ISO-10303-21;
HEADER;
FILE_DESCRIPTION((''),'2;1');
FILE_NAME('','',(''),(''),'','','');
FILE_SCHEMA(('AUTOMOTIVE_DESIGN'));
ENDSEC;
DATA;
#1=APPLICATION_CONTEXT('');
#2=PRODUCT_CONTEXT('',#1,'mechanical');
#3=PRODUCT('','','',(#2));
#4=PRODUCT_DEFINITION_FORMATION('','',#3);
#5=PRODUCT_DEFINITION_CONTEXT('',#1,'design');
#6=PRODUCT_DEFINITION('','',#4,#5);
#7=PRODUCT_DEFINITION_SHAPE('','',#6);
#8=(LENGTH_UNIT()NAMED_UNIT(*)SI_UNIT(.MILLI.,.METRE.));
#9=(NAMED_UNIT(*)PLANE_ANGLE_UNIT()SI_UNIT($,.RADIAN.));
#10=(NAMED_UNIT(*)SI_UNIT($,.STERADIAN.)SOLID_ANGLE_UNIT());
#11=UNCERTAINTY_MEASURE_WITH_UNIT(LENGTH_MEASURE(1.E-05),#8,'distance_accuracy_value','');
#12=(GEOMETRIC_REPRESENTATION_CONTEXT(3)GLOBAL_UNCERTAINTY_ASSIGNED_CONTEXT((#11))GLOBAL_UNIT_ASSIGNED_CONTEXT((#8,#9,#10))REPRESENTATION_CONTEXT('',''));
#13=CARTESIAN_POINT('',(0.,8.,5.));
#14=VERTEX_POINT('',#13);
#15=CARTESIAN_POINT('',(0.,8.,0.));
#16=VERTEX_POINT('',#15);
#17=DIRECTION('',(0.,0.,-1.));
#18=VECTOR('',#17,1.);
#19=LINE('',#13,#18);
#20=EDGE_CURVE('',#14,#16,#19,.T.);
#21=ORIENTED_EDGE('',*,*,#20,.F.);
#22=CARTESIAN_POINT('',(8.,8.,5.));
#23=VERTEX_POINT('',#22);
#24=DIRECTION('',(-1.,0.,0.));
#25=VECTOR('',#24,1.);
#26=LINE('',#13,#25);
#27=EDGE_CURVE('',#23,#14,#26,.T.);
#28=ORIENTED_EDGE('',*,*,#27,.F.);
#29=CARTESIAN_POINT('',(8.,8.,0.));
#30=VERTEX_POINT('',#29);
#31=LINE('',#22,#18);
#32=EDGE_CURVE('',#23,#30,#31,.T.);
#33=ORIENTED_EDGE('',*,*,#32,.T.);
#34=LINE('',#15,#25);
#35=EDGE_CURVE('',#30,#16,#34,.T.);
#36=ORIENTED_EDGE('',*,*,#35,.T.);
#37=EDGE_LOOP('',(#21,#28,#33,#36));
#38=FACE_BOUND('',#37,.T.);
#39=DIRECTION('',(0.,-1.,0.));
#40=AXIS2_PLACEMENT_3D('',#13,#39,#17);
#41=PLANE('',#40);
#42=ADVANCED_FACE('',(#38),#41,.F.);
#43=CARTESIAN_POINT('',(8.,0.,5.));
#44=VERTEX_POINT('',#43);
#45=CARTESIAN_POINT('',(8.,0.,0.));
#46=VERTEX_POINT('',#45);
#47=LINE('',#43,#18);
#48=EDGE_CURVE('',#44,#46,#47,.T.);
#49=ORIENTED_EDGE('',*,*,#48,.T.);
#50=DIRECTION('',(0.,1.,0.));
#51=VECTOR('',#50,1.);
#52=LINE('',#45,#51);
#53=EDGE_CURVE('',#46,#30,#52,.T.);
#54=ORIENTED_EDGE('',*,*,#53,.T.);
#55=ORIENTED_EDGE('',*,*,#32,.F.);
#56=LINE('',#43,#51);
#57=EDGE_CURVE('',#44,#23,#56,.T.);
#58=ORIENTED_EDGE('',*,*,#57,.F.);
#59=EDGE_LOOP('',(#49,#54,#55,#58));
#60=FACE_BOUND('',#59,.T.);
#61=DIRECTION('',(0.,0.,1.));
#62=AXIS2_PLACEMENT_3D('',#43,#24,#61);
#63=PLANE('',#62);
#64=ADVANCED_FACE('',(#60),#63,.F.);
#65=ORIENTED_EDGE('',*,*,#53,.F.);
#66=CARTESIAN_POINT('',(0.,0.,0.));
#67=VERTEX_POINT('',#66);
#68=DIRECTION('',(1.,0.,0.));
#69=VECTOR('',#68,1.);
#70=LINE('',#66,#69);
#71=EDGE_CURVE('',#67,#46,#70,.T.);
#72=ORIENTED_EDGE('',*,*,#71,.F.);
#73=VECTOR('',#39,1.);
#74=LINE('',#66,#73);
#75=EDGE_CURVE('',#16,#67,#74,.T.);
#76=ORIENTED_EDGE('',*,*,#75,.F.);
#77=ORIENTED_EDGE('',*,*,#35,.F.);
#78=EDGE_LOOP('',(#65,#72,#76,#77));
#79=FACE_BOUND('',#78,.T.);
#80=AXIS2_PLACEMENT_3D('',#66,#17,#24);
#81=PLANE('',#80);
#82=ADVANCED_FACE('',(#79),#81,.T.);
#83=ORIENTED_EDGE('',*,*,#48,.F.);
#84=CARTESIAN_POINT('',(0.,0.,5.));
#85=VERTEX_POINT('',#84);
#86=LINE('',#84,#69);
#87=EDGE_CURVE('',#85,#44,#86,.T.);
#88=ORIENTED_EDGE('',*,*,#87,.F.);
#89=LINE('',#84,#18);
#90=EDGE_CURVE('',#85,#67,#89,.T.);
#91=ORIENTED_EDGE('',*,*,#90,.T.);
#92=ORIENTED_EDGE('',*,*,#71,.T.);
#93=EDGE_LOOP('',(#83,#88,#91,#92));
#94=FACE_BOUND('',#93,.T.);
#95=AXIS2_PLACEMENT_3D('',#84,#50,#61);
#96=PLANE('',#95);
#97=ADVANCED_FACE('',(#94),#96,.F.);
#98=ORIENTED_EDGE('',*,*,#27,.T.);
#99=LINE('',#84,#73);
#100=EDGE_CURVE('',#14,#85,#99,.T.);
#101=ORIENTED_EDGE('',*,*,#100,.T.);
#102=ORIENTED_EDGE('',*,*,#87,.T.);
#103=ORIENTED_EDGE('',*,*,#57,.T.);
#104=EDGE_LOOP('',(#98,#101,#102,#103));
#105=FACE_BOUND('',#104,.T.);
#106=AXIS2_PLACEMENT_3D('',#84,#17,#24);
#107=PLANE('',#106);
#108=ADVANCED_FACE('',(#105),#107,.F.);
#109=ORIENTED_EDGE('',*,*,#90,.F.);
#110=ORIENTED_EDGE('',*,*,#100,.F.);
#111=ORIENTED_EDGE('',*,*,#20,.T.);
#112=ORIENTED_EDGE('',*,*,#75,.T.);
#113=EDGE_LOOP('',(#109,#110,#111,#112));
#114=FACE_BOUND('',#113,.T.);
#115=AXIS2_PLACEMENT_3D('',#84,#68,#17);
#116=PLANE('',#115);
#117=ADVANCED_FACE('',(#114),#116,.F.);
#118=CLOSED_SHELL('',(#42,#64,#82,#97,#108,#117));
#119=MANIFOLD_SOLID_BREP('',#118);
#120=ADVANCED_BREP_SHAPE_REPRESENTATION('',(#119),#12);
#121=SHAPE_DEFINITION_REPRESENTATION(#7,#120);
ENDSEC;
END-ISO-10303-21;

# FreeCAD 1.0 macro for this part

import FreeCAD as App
import Part
import Sketcher
from FreeCAD import Vector
Q = App.Units.Quantity


def add_polygon(sketch, points):
    """Adds a closed chain of lines whose ends are joined by coincident constraints."""
    first, n = sketch.GeometryCount, len(points)
    for a, b in zip(points, points[1:] + points[:1]):
        sketch.addGeometry(Part.LineSegment(App.Vector(*a, 0), App.Vector(*b, 0)), False)
    for i in range(n):
        sketch.addConstraint(Sketcher.Constraint("Coincident", first + i, 2, first + (i + 1) % n, 1))

doc = App.newDocument("Part")
params = doc.addObject("Spreadsheet::Sheet", "Params")
for row, (alias, value) in enumerate([
    ("sketch1_width", "8 mm"),
    ("pad1_length", "5 mm"),
], start=1):
    params.set(f"A{row}", alias)
    params.set(f"B{row}", "=" + value)
    params.setAlias(f"B{row}", alias)

body = doc.addObject("PartDesign::Body", "Body")

# Sketch on XY plane
sketch1 = body.newObject("Sketcher::SketchObject", "Sketch")
sketch1.AttachmentSupport = (doc.getObject("XY_Plane"), [""])
sketch1.MapMode = "FlatFace"
add_polygon(sketch1, [(0, 8), (0, 0), (8, 0), (8, 8)])  # lines 0-3
sketch1.addConstraint(Sketcher.Constraint("Vertical", 0))
sketch1.addConstraint(Sketcher.Constraint("Horizontal", 1))
sketch1.addConstraint(Sketcher.Constraint("Vertical", 2))
sketch1.addConstraint(Sketcher.Constraint("Horizontal", 3))
sketch1.addConstraint(Sketcher.Constraint("Coincident", 0, 2, -1, 1))
sketch1.addConstraint(Sketcher.Constraint("Equal", 3, 0))
sketch1.addConstraint(Sketcher.Constraint("DistanceX", 1, 1, 1, 2, Q("8 mm")))
sketch1.setExpression("Constraints[10]", "Params.sketch1_width")
pad1 = body.newObject("PartDesign::Pad", "Pad")
pad1.Profile = sketch1
pad1.setExpression("Length", "Params.pad1_length")

doc.recompute()
